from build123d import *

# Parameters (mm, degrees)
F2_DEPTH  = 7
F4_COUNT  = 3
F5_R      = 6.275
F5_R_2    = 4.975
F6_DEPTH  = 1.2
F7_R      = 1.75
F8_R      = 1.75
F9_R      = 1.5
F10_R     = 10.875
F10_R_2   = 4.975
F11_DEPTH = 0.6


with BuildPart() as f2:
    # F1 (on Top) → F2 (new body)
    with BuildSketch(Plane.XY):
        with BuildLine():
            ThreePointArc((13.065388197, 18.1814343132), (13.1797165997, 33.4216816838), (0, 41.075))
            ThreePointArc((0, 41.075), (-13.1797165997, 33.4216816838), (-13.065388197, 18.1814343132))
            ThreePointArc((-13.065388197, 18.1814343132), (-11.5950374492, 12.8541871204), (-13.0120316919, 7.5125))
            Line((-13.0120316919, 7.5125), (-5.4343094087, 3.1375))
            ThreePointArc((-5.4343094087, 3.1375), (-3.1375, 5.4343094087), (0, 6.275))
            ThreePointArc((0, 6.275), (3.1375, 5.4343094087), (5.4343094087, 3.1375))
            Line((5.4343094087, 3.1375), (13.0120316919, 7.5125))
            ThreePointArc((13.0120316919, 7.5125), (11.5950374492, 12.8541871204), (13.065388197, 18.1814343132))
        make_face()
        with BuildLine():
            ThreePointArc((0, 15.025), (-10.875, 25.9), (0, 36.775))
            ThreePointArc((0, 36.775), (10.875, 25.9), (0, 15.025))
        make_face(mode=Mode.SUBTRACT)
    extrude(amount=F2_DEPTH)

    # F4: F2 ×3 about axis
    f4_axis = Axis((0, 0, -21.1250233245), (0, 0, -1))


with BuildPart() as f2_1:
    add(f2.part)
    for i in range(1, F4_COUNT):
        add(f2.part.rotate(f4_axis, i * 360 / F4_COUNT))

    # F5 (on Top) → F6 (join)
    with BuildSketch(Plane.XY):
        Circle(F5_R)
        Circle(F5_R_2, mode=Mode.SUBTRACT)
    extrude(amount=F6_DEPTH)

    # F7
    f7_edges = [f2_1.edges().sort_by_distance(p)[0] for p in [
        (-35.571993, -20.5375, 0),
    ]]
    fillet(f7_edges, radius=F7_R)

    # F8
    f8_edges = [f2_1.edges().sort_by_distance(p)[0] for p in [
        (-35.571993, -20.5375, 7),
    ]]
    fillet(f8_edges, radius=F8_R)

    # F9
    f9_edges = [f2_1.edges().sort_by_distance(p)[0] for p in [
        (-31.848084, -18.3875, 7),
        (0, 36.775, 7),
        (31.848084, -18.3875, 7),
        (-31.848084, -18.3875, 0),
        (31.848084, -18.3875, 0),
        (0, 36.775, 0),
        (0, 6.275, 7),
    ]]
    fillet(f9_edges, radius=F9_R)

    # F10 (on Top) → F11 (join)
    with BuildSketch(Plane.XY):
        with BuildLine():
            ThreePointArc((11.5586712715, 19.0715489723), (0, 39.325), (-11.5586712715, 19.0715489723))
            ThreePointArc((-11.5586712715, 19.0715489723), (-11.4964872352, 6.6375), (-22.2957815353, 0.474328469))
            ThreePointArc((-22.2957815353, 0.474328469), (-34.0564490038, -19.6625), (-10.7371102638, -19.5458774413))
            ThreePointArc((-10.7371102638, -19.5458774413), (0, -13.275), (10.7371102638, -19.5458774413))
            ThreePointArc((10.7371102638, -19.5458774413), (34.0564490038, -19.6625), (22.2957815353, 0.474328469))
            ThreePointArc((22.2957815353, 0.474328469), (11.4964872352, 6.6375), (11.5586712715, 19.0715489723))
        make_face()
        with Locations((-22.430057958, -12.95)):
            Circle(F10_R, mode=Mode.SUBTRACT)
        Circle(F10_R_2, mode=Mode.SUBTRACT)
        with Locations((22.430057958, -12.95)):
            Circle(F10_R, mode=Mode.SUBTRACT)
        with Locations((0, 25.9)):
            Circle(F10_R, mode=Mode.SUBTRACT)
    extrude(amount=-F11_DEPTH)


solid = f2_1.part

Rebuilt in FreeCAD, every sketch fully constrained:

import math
import FreeCAD as App
import Part
import Sketcher
from FreeCAD import Vector
Q = App.Units.Quantity


def edges_at(feature, points):
    """Names of the edges that pass closest to the given points."""
    edges = feature.Shape.Edges
    near = lambda p: min(range(len(edges)), key=lambda i: edges[i].distToShape(Part.Vertex(*p))[0])
    return sorted({f"Edge{near(p) + 1}" for p in points})

doc = App.newDocument("Part")
body = doc.addObject("PartDesign::Body", "Body")

# Sketch on XY plane
sketch1 = doc.addObject("Sketcher::SketchObject", "Sketch")
body.addObject(sketch1)
sketch1.AttachmentSupport = (doc.XY_Plane, [""])
sketch1.MapMode = "FlatFace"
sketch1.addGeometry([
    Part.ArcOfCircle(Part.Circle(Vector(0, 25.9, 0), Vector(0, 0, 1), 15.175), math.radians(-30.57308), math.radians(90)),  # 0
    Part.ArcOfCircle(Part.Circle(Vector(0, 25.9, 0), Vector(0, 0, 1), 15.175), math.radians(90), math.radians(210.57308)),  # 1
    Part.ArcOfCircle(Part.Circle(Vector(-22.172482, 12.801288, 0), Vector(0, 0, 1), 10.577576), math.radians(-30), math.radians(30.57308)),  # 2
    Part.LineSegment(Vector(-13.012032, 7.5125, 0), Vector(-5.434309, 3.1375, 0)),  # 3
    Part.ArcOfCircle(Part.Circle(Vector(0, 0, 0), Vector(0, 0, 1), 6.275), math.radians(90), math.radians(150)),  # 4
    Part.ArcOfCircle(Part.Circle(Vector(0, 0, 0), Vector(0, 0, 1), 6.275), math.radians(30), math.radians(90)),  # 5
    Part.LineSegment(Vector(5.434309, 3.1375, 0), Vector(13.012032, 7.5125, 0)),  # 6
    Part.ArcOfCircle(Part.Circle(Vector(22.172482, 12.801288, 0), Vector(0, 0, 1), 10.577576), math.radians(149.42692), math.radians(210)),  # 7
    Part.Circle(Vector(0, 25.9, 0), Vector(0, 0, 1), 10.875),  # 8
], False)
sketch1.addConstraint([
    Sketcher.Constraint("Tangent", 0, 2, 1, 1),
    Sketcher.Constraint("Tangent", 1, 2, 2, 2),
    Sketcher.Constraint("Coincident", 2, 1, 3, 1),
    Sketcher.Constraint("Coincident", 3, 2, 4, 2),
    Sketcher.Constraint("Tangent", 4, 1, 5, 2),
    Sketcher.Constraint("Coincident", 5, 1, 6, 1),
    Sketcher.Constraint("Coincident", 6, 2, 7, 2),
    Sketcher.Constraint("Tangent", 7, 1, 0, 1),
    Sketcher.Constraint("Coincident", 4, 3, -1, 1),
    Sketcher.Constraint("Coincident", 8, 3, 0, 3),
    Sketcher.Constraint("Equal", 0, 1),
    Sketcher.Constraint("Equal", 4, 5),
    Sketcher.Constraint("Equal", 2, 7),
    Sketcher.Constraint("Symmetric", 2, 3, 7, 3, -2),
    Sketcher.Constraint("PointOnObject", 0, 2, -2),
    Sketcher.Constraint("PointOnObject", 4, 1, -2),
    Sketcher.Constraint("Horizontal", 3, 2, 5, 1),
    Sketcher.Constraint("Horizontal", 2, 1, 6, 2),
    Sketcher.Constraint("Diameter", 8, Q("21.75 mm")),
    Sketcher.Constraint("Angle", 3, Q("-30 deg")),
    Sketcher.Constraint("Radius", 0, Q("15.175 mm")),
    Sketcher.Constraint("Radius", 4, Q("6.275 mm")),
    Sketcher.Constraint("DistanceY", -1, 1, 0, 3, Q("25.9 mm")),
    Sketcher.Constraint("Distance", 3, Q("8.75 mm")),
    Sketcher.Constraint("Radius", 2, Q("10.577576 mm")),
    Sketcher.Constraint("DistanceY", -1, 1, 2, 1, Q("7.5125 mm")),
])
pad1 = doc.addObject("PartDesign::Pad", "Pad")
body.addObject(pad1)
pad1.Profile = sketch1
pad1.Length = 7
body2 = doc.addObject("PartDesign::Body", "Body001")
doc.recompute()

body2.BaseFeature = body
doc.recompute()

body3 = doc.addObject("PartDesign::Body", "Body002")
body3.BaseFeature = body
body3.Placement = App.Placement(Vector(0, 0, 0), App.Rotation(Vector(0, 0, -1), 120))
boolean = doc.addObject("PartDesign::Boolean", "Boolean")
body2.addObject(boolean)
boolean.Type = "Fuse"
boolean.addObjects([body3])
doc.recompute()

body.Placement = App.Placement(Vector(0, 0, 0), App.Rotation(Vector(0, 0, -1), 240))
boolean2 = doc.addObject("PartDesign::Boolean", "Boolean001")
body2.addObject(boolean2)
boolean2.Type = "Fuse"
boolean2.addObjects([body])

# Sketch on XY plane
sketch2 = doc.addObject("Sketcher::SketchObject", "Sketch001")
body2.addObject(sketch2)
sketch2.AttachmentSupport = (doc.getObject("XY_Plane001"), [""])
sketch2.MapMode = "FlatFace"
sketch2.addGeometry([
    Part.Circle(Vector(0, 0, 0), Vector(0, 0, 1), 6.275),
    Part.Circle(Vector(0, 0, 0), Vector(0, 0, 1), 4.975),
], False)
sketch2.addConstraint([
    Sketcher.Constraint("Coincident", 0, 3, -1, 1),
    Sketcher.Constraint("Coincident", 1, 3, -1, 1),
    Sketcher.Constraint("Diameter", 0, Q("12.55 mm")),
    Sketcher.Constraint("Diameter", 1, Q("9.95 mm")),
])
pad2 = doc.addObject("PartDesign::Pad", "Pad001")
body2.addObject(pad2)
pad2.Profile = sketch2
pad2.Length = 1.2
doc.recompute()

fillet = doc.addObject("PartDesign::Fillet", "Fillet")
body2.addObject(fillet)
fillet.Base = (pad2, edges_at(pad2, [(-22.354, -28.125, 0)]))
fillet.Radius = 1.75
doc.recompute()

fillet2 = doc.addObject("PartDesign::Fillet", "Fillet001")
body2.addObject(fillet2)
fillet2.Base = (fillet, edges_at(fillet, [(-22.354, -28.125, 7)]))
fillet2.Radius = 1.75
doc.recompute()

fillet3 = doc.addObject("PartDesign::Fillet", "Fillet002")
body2.addObject(fillet3)
fillet3.Base = (fillet2, edges_at(fillet2, [
    (-13.012, -7.513, 7),
    (0, 15.025, 7),
    (13.012, -7.513, 7),
    (-13.012, -7.513, 0),
    (13.012, -7.513, 0),
    (0, 15.025, 0),
    (-3.138, 5.434, 7),
]))
fillet3.Radius = 1.5

# Sketch on XY plane
sketch3 = doc.addObject("Sketcher::SketchObject", "Sketch002")
body2.addObject(sketch3)
sketch3.AttachmentSupport = (doc.getObject("XY_Plane001"), [""])
sketch3.MapMode = "FlatFace"
sketch3.addGeometry([
    Part.ArcOfCircle(Part.Circle(Vector(0, 25.9, 0), Vector(0, 0, 1), 13.425), math.radians(-30.57308), math.radians(210.57308)),  # 0
    Part.ArcOfCircle(Part.Circle(Vector(-22.172482, 12.801288, 0), Vector(0, 0, 1), 12.327576), math.radians(-90.57308), math.radians(30.57308)),  # 1
    Part.ArcOfCircle(Part.Circle(Vector(-22.430058, -12.95, 0), Vector(0, 0, 1), 13.425), math.radians(89.42692), math.radians(330.57308)),  # 2
    Part.ArcOfCircle(Part.Circle(Vector(0, -25.602576, 0), Vector(0, 0, 1), 12.327576), math.radians(29.42692), math.radians(150.57308)),  # 3
    Part.ArcOfCircle(Part.Circle(Vector(22.430058, -12.95, 0), Vector(0, 0, 1), 13.425), math.radians(-150.57308), math.radians(90.57308)),  # 4
    Part.ArcOfCircle(Part.Circle(Vector(22.172482, 12.801288, 0), Vector(0, 0, 1), 12.327576), math.radians(149.42692), math.radians(270.57308)),  # 5
    Part.Circle(Vector(-22.430058, -12.95, 0), Vector(0, 0, 1), 10.875),  # 6
    Part.Circle(Vector(22.430058, -12.95, 0), Vector(0, 0, 1), 10.875),  # 7
    Part.Circle(Vector(0, 0, 0), Vector(0, 0, 1), 4.975),  # 8
    Part.Circle(Vector(0, 25.9, 0), Vector(0, 0, 1), 10.875),  # 9
], False)
sketch3.addConstraint([
    Sketcher.Constraint("Tangent", 0, 2, 1, 2),
    Sketcher.Constraint("Tangent", 1, 1, 2, 1),
    Sketcher.Constraint("Tangent", 2, 2, 3, 2),
    Sketcher.Constraint("Tangent", 3, 1, 4, 1),
    Sketcher.Constraint("Tangent", 4, 2, 5, 2),
    Sketcher.Constraint("Tangent", 5, 1, 0, 1),
    Sketcher.Constraint("Coincident", 8, 3, -1, 1),
    Sketcher.Constraint("Coincident", 6, 3, 2, 3),
    Sketcher.Constraint("Coincident", 7, 3, 4, 3),
    Sketcher.Constraint("Coincident", 9, 3, 0, 3),
    Sketcher.Constraint("Equal", 0, 2),
    Sketcher.Constraint("Equal", 1, 3),
    Sketcher.Constraint("Equal", 2, 4),
    Sketcher.Constraint("Equal", 3, 5),
    Sketcher.Constraint("Equal", 6, 7),
    Sketcher.Constraint("Equal", 7, 9),
    Sketcher.Constraint("Symmetric", 2, 3, 4, 3, -2),
    Sketcher.Constraint("PointOnObject", 0, 3, -2),
    Sketcher.Constraint("Diameter", 6, Q("21.75 mm")),
    Sketcher.Constraint("Diameter", 8, Q("9.95 mm")),
    Sketcher.Constraint("Radius", 0, Q("13.425 mm")),
    Sketcher.Constraint("DistanceY", -1, 1, 0, 3, Q("25.9 mm")),
    Sketcher.Constraint("DistanceY", 2, 3, -1, 1, Q("12.95 mm")),
    Sketcher.Constraint("Radius", 1, Q("12.327576 mm")),
    Sketcher.Constraint("DistanceX", 1, 1, 1, 3, Q("0.1233 mm")),
])
pad3 = doc.addObject("PartDesign::Pad", "Pad002")
body2.addObject(pad3)
pad3.Profile = sketch3
pad3.Length = 0.6
pad3.Reversed = True

doc.recompute()
